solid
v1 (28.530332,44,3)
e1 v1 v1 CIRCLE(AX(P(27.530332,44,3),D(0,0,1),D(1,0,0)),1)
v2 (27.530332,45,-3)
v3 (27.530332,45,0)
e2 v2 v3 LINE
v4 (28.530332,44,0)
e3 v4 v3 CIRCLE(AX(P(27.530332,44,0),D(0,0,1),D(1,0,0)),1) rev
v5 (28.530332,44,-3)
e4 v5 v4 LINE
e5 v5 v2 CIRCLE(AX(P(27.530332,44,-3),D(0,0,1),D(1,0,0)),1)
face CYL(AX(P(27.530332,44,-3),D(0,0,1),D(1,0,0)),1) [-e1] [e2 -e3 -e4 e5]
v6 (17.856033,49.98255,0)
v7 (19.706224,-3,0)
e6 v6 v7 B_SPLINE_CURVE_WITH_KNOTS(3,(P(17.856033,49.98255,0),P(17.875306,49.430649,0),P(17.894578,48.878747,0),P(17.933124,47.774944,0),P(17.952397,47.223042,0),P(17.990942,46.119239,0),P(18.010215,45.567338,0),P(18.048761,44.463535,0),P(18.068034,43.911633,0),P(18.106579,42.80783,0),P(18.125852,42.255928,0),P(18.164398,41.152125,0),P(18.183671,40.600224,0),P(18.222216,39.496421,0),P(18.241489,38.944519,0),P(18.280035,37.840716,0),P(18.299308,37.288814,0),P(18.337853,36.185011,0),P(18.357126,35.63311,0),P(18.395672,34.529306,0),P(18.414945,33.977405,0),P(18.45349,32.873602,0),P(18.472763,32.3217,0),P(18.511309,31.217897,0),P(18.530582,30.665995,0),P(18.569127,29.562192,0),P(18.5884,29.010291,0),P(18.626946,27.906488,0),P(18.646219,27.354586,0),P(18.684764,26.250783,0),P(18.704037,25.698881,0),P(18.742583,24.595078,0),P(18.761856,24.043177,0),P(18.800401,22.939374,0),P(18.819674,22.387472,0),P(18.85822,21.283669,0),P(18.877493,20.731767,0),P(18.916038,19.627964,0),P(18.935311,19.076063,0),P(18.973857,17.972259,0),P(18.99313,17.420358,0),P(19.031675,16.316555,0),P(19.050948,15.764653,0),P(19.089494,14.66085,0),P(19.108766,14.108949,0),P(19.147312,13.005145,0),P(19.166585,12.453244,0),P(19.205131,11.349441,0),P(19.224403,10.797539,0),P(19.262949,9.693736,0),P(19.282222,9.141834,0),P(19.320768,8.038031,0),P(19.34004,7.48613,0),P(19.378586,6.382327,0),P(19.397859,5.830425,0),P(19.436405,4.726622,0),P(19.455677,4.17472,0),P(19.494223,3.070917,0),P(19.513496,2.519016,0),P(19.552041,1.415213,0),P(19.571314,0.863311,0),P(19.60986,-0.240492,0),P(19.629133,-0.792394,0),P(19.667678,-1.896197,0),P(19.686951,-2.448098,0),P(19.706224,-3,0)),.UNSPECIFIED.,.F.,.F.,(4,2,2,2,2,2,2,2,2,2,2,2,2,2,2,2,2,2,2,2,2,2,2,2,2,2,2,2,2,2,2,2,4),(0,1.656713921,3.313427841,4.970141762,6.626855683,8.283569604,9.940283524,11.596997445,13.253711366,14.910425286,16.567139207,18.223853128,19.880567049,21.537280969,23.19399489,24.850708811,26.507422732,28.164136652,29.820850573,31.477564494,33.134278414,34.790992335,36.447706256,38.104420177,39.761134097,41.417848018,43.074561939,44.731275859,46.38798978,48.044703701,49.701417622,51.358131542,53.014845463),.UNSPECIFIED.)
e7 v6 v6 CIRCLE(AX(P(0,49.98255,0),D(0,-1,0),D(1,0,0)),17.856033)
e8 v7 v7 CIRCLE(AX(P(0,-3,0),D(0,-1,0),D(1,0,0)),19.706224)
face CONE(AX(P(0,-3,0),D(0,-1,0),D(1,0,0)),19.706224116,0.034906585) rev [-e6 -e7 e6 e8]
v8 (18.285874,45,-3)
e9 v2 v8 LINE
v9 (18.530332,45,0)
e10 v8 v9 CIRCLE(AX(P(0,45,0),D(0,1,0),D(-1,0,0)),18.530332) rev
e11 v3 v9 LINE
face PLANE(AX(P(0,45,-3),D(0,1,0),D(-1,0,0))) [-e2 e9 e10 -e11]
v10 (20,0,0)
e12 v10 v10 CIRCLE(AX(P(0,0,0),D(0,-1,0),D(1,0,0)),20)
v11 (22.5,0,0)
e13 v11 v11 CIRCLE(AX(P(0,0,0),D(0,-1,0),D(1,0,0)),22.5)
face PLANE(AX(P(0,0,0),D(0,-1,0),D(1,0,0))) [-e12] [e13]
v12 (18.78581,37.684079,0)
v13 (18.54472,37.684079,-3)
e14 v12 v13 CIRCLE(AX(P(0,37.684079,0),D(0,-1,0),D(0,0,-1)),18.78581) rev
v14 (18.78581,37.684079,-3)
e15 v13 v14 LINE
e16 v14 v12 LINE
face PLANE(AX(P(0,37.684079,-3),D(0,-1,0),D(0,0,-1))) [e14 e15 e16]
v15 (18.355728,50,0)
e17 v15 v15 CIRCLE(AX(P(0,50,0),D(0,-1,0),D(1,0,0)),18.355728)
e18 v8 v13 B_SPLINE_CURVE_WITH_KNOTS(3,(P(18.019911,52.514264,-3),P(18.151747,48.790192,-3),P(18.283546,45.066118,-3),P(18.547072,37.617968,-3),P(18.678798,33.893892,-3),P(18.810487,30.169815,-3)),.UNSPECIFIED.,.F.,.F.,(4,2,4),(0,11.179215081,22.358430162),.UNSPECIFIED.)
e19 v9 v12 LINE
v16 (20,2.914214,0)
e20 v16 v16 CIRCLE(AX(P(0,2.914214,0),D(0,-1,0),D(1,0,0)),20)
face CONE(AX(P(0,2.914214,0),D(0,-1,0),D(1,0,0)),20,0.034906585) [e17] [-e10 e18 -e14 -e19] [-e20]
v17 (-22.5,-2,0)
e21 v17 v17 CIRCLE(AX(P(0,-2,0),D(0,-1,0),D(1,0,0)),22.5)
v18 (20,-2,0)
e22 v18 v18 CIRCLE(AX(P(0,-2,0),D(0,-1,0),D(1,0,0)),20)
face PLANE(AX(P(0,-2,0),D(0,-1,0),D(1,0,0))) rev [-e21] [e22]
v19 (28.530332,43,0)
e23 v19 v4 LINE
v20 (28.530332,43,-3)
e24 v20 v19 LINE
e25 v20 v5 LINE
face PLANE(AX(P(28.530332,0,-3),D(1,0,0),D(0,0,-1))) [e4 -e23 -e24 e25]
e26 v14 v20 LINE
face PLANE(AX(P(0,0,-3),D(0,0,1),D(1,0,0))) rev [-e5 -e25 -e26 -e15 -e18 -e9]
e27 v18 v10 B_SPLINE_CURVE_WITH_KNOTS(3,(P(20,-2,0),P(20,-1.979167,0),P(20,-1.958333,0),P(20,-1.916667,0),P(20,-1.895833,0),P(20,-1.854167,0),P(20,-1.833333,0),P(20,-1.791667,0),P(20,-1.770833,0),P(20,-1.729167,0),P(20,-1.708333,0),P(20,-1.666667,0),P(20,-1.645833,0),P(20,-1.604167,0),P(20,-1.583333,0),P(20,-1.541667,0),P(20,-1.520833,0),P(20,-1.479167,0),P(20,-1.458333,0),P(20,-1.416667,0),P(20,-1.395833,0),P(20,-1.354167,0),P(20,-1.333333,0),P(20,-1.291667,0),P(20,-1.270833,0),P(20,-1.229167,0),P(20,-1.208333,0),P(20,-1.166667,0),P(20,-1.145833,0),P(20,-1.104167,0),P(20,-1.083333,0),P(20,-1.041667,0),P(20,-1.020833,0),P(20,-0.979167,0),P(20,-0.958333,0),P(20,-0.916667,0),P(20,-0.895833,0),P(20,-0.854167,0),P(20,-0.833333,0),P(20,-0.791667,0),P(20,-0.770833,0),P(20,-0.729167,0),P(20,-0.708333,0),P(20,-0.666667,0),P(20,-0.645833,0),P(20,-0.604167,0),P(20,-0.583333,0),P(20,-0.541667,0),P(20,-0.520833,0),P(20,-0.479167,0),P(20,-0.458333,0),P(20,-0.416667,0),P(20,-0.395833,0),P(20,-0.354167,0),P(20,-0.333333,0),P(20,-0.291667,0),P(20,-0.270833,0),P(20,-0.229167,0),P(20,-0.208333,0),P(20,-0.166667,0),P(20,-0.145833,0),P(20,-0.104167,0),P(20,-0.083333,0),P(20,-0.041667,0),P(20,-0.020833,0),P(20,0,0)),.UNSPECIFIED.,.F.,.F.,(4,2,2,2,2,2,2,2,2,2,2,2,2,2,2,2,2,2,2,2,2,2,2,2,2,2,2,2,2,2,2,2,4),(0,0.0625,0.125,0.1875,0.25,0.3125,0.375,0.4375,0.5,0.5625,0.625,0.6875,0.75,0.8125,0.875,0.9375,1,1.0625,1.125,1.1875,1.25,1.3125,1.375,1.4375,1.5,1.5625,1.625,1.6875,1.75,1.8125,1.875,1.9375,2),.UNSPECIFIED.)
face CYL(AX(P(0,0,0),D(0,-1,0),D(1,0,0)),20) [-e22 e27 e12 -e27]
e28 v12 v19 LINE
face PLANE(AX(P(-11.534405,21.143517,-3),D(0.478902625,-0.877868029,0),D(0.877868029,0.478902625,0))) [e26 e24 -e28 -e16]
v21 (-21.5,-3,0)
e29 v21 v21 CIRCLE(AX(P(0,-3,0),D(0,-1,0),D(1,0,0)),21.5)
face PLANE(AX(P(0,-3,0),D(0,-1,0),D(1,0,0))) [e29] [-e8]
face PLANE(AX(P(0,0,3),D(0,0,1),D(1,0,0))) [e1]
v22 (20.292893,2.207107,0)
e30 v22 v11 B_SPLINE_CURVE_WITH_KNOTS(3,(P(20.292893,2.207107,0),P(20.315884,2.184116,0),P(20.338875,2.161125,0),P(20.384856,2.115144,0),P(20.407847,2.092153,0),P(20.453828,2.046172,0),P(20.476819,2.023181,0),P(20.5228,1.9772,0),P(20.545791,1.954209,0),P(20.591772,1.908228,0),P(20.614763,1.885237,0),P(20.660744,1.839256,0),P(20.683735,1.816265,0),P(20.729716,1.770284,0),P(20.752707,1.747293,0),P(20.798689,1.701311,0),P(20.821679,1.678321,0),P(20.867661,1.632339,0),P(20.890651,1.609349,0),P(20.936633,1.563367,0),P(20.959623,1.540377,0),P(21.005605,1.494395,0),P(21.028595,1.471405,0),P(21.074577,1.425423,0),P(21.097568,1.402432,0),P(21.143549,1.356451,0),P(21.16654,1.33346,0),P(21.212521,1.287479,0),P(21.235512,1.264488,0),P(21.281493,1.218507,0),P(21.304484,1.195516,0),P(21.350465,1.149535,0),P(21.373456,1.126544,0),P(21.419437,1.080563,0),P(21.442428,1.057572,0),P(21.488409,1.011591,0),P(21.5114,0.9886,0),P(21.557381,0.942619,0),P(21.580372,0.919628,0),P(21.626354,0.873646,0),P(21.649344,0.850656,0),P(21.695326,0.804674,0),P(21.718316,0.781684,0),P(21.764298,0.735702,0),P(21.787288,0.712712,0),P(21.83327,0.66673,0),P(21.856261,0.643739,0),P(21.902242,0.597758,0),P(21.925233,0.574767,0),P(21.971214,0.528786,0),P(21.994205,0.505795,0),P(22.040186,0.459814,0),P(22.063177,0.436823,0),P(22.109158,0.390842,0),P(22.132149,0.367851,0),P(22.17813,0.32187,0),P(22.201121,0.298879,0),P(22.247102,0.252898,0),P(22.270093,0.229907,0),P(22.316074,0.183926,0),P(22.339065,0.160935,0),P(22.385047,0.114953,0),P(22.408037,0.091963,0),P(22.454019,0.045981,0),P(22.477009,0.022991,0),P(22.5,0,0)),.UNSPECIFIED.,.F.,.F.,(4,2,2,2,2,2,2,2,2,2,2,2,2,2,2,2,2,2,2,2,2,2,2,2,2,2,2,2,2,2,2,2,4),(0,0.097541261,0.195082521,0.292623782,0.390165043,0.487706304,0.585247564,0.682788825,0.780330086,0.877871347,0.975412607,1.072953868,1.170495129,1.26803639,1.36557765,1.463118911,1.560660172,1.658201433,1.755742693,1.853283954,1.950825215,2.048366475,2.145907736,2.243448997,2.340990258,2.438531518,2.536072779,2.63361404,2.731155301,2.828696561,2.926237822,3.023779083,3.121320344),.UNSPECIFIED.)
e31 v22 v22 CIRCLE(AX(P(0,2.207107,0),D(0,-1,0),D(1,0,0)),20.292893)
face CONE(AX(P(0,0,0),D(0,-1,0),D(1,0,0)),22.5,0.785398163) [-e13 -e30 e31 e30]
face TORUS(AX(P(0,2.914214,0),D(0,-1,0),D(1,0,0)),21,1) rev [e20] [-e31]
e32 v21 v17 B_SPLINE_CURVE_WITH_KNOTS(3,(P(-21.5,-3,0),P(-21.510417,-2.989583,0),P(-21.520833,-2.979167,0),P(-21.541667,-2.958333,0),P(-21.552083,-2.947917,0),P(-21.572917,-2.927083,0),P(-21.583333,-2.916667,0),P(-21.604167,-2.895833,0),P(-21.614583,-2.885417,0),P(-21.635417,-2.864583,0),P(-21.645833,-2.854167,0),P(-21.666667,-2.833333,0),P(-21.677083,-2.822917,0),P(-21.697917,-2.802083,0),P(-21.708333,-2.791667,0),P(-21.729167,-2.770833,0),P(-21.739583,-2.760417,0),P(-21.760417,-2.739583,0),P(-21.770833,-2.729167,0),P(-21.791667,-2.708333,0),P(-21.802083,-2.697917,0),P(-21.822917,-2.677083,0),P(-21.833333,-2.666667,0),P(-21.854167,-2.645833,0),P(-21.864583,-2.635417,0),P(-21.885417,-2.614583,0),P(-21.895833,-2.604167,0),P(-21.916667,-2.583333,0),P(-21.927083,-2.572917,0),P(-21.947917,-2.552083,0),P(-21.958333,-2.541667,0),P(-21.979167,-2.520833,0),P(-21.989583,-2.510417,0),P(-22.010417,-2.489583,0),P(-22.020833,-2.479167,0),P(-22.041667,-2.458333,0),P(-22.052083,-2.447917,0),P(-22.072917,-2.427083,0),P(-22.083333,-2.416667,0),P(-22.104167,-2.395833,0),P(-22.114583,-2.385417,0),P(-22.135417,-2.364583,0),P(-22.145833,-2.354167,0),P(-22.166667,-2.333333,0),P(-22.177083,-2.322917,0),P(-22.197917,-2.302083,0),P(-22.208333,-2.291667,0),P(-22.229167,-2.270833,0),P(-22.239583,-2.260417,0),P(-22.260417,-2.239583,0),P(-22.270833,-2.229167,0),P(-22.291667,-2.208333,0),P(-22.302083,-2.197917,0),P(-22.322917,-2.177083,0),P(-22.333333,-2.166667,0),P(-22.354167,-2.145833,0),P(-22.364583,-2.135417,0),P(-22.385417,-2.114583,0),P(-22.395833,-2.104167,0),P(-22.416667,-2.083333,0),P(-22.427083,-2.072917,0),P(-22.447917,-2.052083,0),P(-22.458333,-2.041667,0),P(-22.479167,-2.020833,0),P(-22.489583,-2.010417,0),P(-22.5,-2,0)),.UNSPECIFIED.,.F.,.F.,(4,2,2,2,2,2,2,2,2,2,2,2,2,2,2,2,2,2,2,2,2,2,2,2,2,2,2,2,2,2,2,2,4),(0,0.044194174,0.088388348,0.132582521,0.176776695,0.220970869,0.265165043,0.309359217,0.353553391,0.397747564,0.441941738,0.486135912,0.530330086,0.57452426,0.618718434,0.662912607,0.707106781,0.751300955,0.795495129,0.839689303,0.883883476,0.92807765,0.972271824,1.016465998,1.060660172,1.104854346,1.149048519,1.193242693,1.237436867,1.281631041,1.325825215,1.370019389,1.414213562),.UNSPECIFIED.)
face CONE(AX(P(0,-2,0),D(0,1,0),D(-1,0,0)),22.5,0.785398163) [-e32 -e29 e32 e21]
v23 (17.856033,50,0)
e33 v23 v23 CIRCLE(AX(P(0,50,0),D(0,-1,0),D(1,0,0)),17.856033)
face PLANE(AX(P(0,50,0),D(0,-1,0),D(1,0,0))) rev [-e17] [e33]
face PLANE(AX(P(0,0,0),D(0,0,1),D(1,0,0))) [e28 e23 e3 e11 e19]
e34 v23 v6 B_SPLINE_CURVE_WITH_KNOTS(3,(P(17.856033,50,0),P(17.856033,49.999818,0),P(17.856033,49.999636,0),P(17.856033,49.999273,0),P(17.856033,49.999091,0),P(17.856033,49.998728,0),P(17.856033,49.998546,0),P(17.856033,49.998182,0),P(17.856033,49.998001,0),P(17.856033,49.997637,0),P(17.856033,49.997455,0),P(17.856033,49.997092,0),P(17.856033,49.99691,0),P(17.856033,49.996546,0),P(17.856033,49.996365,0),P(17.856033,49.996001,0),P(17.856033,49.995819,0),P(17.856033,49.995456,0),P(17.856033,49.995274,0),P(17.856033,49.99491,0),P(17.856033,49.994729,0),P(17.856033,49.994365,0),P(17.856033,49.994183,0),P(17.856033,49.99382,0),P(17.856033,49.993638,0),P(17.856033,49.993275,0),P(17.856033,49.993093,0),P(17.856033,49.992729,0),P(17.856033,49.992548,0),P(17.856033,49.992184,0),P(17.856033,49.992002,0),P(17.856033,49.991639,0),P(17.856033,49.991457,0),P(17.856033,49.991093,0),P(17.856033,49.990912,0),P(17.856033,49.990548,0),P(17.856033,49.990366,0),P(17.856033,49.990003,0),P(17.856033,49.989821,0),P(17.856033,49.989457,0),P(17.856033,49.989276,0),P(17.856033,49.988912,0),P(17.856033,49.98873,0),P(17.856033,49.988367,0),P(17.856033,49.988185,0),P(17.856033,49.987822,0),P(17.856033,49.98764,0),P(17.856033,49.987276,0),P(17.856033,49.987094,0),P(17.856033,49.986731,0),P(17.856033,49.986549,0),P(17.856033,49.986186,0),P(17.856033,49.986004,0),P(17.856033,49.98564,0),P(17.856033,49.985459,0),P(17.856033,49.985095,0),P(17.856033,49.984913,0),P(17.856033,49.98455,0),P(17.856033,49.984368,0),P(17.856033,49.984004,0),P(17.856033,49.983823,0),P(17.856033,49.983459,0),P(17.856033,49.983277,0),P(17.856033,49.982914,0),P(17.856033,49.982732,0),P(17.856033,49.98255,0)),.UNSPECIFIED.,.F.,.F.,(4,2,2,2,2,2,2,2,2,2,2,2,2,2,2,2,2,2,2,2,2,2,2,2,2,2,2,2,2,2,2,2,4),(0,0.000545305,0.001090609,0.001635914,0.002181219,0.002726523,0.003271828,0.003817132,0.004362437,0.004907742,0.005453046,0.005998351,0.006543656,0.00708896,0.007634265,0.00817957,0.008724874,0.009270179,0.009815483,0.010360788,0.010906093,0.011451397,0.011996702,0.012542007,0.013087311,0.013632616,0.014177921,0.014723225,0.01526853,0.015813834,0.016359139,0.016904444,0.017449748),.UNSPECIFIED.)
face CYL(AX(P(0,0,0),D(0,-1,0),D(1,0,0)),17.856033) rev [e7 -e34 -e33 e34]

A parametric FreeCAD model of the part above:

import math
import FreeCAD as App
import Part
import Sketcher
Q = App.Units.Quantity

doc = App.newDocument("Part")
body = doc.addObject("PartDesign::Body", "Body")

# Sketch on XY plane
sketch1 = doc.addObject("Sketcher::SketchObject", "Sketch")
body.addObject(sketch1)
sketch1.AttachmentSupport = (doc.XY_Plane, [""])
sketch1.MapMode = "FlatFace"
sketch1.addGeometry([
    Part.LineSegment(App.Vector(19.5, 2.905, 0), App.Vector(19.706, -3, 0)),  # 0
    Part.LineSegment(App.Vector(19.706, -3, 0), App.Vector(21.5, -3, 0)),  # 1
    Part.LineSegment(App.Vector(21.5, -3, 0), App.Vector(22.5, -2, 0)),  # 2
    Part.LineSegment(App.Vector(22.5, -2, 0), App.Vector(20, -2, 0)),  # 3
    Part.LineSegment(App.Vector(20, -2, 0), App.Vector(20, 0, 0)),  # 4
    Part.LineSegment(App.Vector(20, 0, 0), App.Vector(22.5, 0, 0)),  # 5
    Part.LineSegment(App.Vector(22.5, 0, 0), App.Vector(20.293, 2.207, 0)),  # 6
    Part.ArcOfCircle(Part.Circle(App.Vector(21, 2.914, 0), App.Vector(0, 0, 1), 1), math.radians(180), math.radians(225)),  # 7
    Part.LineSegment(App.Vector(20, 2.914, 0), App.Vector(18.356, 50, 0)),  # 8
    Part.LineSegment(App.Vector(18.356, 50, 0), App.Vector(17.856, 50, 0)),  # 9
    Part.LineSegment(App.Vector(17.856, 50, 0), App.Vector(17.856, 49.983, 0)),  # 10
    Part.LineSegment(App.Vector(17.856, 49.983, 0), App.Vector(19.5, 2.905, 0)),  # 11
], False)
sketch1.addConstraint([
    Sketcher.Constraint("Coincident", 0, 2, 1, 1),
    Sketcher.Constraint("Coincident", 1, 2, 2, 1),
    Sketcher.Constraint("Coincident", 2, 2, 3, 1),
    Sketcher.Constraint("Coincident", 3, 2, 4, 1),
    Sketcher.Constraint("Coincident", 4, 2, 5, 1),
    Sketcher.Constraint("Coincident", 5, 2, 6, 1),
    Sketcher.Constraint("Tangent", 6, 2, 7, 2),
    Sketcher.Constraint("Coincident", 7, 1, 8, 1),
    Sketcher.Constraint("Coincident", 8, 2, 9, 1),
    Sketcher.Constraint("Coincident", 9, 2, 10, 1),
    Sketcher.Constraint("Coincident", 10, 2, 11, 1),
    Sketcher.Constraint("Coincident", 11, 2, 0, 1),
    Sketcher.Constraint("Horizontal", 1),
    Sketcher.Constraint("Horizontal", 3),
    Sketcher.Constraint("Vertical", 4),
    Sketcher.Constraint("Horizontal", 5),
    Sketcher.Constraint("Horizontal", 9),
    Sketcher.Constraint("Vertical", 10),
    Sketcher.Constraint("PointOnObject", 4, 2, -1),
    Sketcher.Constraint("Perpendicular", 2, 6),
    Sketcher.Constraint("Parallel", 0, 8),
    Sketcher.Constraint("Parallel", 8, 11),
    Sketcher.Constraint("Vertical", 2, 2, 5, 2),
    Sketcher.Constraint("Vertical", 4, 2, 7, 1),
    Sketcher.Constraint("Radius", 7, 1.0),
    Sketcher.Constraint("DistanceY", 4, 1, 4, 2, 2.0),
    Sketcher.Constraint("Angle", 0, Q("-88 deg")),
    Sketcher.Constraint("Angle", 2, Q("45 deg")),
    Sketcher.Constraint("DistanceX", 3, 2, 3, 1, 2.5),
    Sketcher.Constraint("DistanceX", -1, 1, 7, 3, 21.0),
    Sketcher.Constraint("DistanceY", 0, 2, -1, 1, 3.0),
    Sketcher.Constraint("DistanceY", -1, 1, 8, 2, 50.0),
    Sketcher.Constraint("DistanceY", 10, 2, 10, 1, 0.01745),
    Sketcher.Constraint("Distance", 11, 47.106642),
    Sketcher.Constraint("DistanceX", 1, 1, 1, 2, 1.793776),
    Sketcher.Constraint("DistanceX", 9, 2, 9, 1, 0.499695),
])
revolution = doc.addObject("PartDesign::Revolution", "Revolution")
body.addObject(revolution)
revolution.Profile = sketch1
revolution.ReferenceAxis = (sketch1, ["V_Axis"])
revolution.Angle = 360

# Sketch on XY plane
sketch2 = doc.addObject("Sketcher::SketchObject", "Sketch001")
body.addObject(sketch2)
sketch2.AttachmentSupport = (doc.XY_Plane, [""])
sketch2.MapMode = "FlatFace"
sketch2.addGeometry([
    Part.LineSegment(App.Vector(18.3, 37.7, 0), App.Vector(18.8, 37.7, 0)),  # 0
    Part.LineSegment(App.Vector(18.8, 37.7, 0), App.Vector(28.5, 43, 0)),  # 1
    Part.LineSegment(App.Vector(28.5, 43, 0), App.Vector(28.5, 44, 0)),  # 2
    Part.ArcOfCircle(Part.Circle(App.Vector(27.5, 44, 0), App.Vector(0, 0, 1), 1), math.radians(0), math.radians(90)),  # 3
    Part.LineSegment(App.Vector(27.5, 45, 0), App.Vector(18.3, 45, 0)),  # 4
    Part.LineSegment(App.Vector(18.3, 45, 0), App.Vector(18.3, 37.7, 0)),  # 5
], False)
sketch2.addConstraint([
    Sketcher.Constraint("Coincident", 0, 2, 1, 1),
    Sketcher.Constraint("Coincident", 1, 2, 2, 1),
    Sketcher.Constraint("Tangent", 2, 2, 3, 1),
    Sketcher.Constraint("Tangent", 3, 2, 4, 1),
    Sketcher.Constraint("Coincident", 4, 2, 5, 1),
    Sketcher.Constraint("Coincident", 5, 2, 0, 1),
    Sketcher.Constraint("Horizontal", 0),
    Sketcher.Constraint("Vertical", 2),
    Sketcher.Constraint("Horizontal", 4),
    Sketcher.Constraint("Vertical", 5),
    Sketcher.Constraint("Radius", 3, 1.0),
    Sketcher.Constraint("DistanceY", 2, 1, 2, 2, 1.0),
    Sketcher.Constraint("DistanceX", 0, 1, 0, 2, 0.5),
    Sketcher.Constraint("DistanceY", -1, 1, 3, 3, 44.0),
    Sketcher.Constraint("DistanceY", 5, 2, 5, 1, 7.315921),
    Sketcher.Constraint("DistanceX", 4, 2, 4, 1, 9.244522),
    Sketcher.Constraint("DistanceX", -1, 1, 3, 3, 27.530332),
])
pad1 = doc.addObject("PartDesign::Pad", "Pad")
body.addObject(pad1)
pad1.Profile = sketch2
pad1.Length = 3
pad1.Reversed = True

# Sketch on XY plane
sketch3 = doc.addObject("Sketcher::SketchObject", "Sketch002")
body.addObject(sketch3)
sketch3.AttachmentSupport = (doc.XY_Plane, [""])
sketch3.MapMode = "FlatFace"
sketch3.AttachmentOffset = App.Placement(App.Vector(0, 0, 3), App.Rotation())
sketch3.addGeometry(Part.Circle(App.Vector(27.5, 44, 0), App.Vector(0, 0, 1), 1), False)
sketch3.addConstraint([
    Sketcher.Constraint("Diameter", 0, 2.0),
    Sketcher.Constraint("DistanceY", -1, 1, 0, 3, 44.0),
    Sketcher.Constraint("DistanceX", -1, 1, 0, 3, 27.530332),
])
pad2 = doc.addObject("PartDesign::Pad", "Pad001")
body.addObject(pad2)
pad2.Profile = sketch3
pad2.Length = 3
pad2.Reversed = True

doc.recompute()
